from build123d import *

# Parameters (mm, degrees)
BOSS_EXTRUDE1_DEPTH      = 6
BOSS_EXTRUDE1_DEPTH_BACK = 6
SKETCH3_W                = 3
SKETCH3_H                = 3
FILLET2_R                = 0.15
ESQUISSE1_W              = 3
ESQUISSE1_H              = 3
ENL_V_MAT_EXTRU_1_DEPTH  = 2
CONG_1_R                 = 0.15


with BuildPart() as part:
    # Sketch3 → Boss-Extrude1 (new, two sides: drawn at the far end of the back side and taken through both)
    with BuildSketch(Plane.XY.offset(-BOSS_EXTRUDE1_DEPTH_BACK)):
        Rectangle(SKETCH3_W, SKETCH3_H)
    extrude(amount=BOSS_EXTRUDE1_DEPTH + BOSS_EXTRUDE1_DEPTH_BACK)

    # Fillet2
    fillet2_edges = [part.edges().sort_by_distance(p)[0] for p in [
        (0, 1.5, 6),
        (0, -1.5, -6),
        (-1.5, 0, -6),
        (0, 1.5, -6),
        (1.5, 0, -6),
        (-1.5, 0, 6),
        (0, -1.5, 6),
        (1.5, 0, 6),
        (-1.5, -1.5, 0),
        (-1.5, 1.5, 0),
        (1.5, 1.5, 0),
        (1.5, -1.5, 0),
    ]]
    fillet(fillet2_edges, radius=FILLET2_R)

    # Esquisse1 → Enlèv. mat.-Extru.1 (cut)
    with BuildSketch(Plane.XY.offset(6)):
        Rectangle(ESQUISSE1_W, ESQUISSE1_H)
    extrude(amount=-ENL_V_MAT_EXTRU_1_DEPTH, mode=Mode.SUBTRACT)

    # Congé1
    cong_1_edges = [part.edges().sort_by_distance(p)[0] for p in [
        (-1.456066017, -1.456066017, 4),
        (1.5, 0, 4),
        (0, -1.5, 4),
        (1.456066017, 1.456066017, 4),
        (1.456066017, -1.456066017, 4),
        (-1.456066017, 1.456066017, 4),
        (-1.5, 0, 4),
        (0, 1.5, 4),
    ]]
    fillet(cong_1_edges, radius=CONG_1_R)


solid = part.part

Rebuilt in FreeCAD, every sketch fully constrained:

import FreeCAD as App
import Part
import Sketcher
from FreeCAD import Vector


def edges_at(feature, points):
    """Names of the edges that pass closest to the given points."""
    edges = feature.Shape.Edges
    near = lambda p: min(range(len(edges)), key=lambda i: edges[i].distToShape(Part.Vertex(*p))[0])
    return sorted({f"Edge{near(p) + 1}" for p in points})


def add_polygon(sketch, points):
    """Adds a closed chain of lines whose ends are joined by coincident constraints."""
    first, n = sketch.GeometryCount, len(points)
    for a, b in zip(points, points[1:] + points[:1]):
        sketch.addGeometry(Part.LineSegment(App.Vector(*a, 0), App.Vector(*b, 0)), False)
    for i in range(n):
        sketch.addConstraint(Sketcher.Constraint("Coincident", first + i, 2, first + (i + 1) % n, 1))

doc = App.newDocument("Part")
body = doc.addObject("PartDesign::Body", "Body")

# Sketch on XY plane
sketch1 = body.newObject("Sketcher::SketchObject", "Sketch")
sketch1.AttachmentSupport = (doc.getObject("XY_Plane"), [""])
sketch1.MapMode = "FlatFace"
add_polygon(sketch1, [(-1.5, 1.5), (-1.5, -1.5), (1.5, -1.5), (1.5, 1.5)])  # lines 0-3
sketch1.addConstraint([
    Sketcher.Constraint("Vertical", 0),
    Sketcher.Constraint("Horizontal", 1),
    Sketcher.Constraint("Vertical", 2),
    Sketcher.Constraint("Horizontal", 3),
    Sketcher.Constraint("Symmetric", 0, 2, 2, 2, -1, 1),
    Sketcher.Constraint("Equal", 3, 0),
    Sketcher.Constraint("DistanceX", 1, 1, 1, 2, 3.0),
])
pad1 = body.newObject("PartDesign::Pad", "Pad")
pad1.Profile = sketch1
pad1.Type = "TwoLengths"
pad1.Length = 6
pad1.Length2 = 6
doc.recompute()

fillet = body.newObject("PartDesign::Fillet", "Fillet")
fillet.Base = (pad1, ["Edge1"])
fillet.UseAllEdges = True
fillet.Radius = 0.15

# Sketch on XY plane
sketch2 = body.newObject("Sketcher::SketchObject", "Sketch001")
sketch2.AttachmentSupport = (doc.getObject("XY_Plane"), [""])
sketch2.MapMode = "FlatFace"
sketch2.AttachmentOffset = App.Placement(Vector(0, 0, 6), App.Rotation())
add_polygon(sketch2, [(-1.5, 1.5), (-1.5, -1.5), (1.5, -1.5), (1.5, 1.5)])  # lines 0-3
sketch2.addConstraint([
    Sketcher.Constraint("Vertical", 0),
    Sketcher.Constraint("Horizontal", 1),
    Sketcher.Constraint("Vertical", 2),
    Sketcher.Constraint("Horizontal", 3),
    Sketcher.Constraint("Symmetric", 0, 2, 2, 2, -1, 1),
    Sketcher.Constraint("Equal", 3, 0),
    Sketcher.Constraint("DistanceX", 1, 1, 1, 2, 3.0),
])
pocket1 = body.newObject("PartDesign::Pocket", "Pocket")
pocket1.Profile = sketch2
pocket1.Length = 2
doc.recompute()

fillet2 = body.newObject("PartDesign::Fillet", "Fillet001")
fillet2.Base = (pocket1, edges_at(pocket1, [
    (-1.456, -1.456, 4),
    (1.5, 0, 4),
    (0, -1.5, 4),
    (1.456, 1.456, 4),
    (1.456, -1.456, 4),
    (-1.456, 1.456, 4),
    (-1.5, 0, 4),
    (0, 1.5, 4),
]))
fillet2.Radius = 0.15

doc.recompute()
